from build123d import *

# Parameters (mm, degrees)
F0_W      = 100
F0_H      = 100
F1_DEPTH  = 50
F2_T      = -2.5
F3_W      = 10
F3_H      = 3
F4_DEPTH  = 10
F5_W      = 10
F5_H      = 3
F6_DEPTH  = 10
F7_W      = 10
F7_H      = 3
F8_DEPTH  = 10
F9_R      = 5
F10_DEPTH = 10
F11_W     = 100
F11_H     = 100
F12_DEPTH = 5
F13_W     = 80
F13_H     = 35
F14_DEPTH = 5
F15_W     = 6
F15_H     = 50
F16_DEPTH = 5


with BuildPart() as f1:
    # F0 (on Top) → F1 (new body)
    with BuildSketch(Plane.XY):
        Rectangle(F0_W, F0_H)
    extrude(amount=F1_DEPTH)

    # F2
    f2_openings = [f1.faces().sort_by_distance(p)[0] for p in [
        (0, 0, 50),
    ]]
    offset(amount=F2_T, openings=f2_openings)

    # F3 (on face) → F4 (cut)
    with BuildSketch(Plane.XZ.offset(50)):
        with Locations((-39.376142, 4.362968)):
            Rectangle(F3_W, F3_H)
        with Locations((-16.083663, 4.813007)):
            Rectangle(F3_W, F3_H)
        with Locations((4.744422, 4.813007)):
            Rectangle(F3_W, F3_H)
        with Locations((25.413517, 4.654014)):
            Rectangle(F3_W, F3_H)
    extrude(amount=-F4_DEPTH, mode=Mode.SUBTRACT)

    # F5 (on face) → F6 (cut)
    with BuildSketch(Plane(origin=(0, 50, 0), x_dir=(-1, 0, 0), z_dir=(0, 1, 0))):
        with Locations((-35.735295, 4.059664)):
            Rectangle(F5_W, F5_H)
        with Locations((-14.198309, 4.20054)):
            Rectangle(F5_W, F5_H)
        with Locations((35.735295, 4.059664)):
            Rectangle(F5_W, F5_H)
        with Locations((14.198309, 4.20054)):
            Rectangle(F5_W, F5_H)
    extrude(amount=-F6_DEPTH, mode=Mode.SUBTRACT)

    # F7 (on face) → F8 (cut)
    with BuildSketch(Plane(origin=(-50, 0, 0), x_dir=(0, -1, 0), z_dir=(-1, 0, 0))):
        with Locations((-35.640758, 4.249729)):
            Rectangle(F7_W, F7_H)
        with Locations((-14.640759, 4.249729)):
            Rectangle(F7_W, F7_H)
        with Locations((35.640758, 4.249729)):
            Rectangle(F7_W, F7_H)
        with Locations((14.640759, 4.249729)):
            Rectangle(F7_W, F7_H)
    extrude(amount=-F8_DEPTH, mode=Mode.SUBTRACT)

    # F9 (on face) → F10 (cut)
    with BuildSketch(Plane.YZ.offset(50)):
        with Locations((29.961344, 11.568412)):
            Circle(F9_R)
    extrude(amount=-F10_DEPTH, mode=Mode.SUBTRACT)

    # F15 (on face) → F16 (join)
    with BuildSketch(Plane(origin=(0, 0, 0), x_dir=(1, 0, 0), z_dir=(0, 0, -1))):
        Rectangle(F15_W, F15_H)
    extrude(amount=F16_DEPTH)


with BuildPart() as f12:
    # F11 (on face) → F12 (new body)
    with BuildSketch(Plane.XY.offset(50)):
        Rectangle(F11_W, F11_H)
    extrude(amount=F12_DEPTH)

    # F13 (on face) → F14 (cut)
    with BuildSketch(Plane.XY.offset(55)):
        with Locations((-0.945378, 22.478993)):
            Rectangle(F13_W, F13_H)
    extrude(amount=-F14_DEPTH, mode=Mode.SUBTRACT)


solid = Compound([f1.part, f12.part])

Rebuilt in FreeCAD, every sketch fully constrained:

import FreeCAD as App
import Part
import Sketcher
from FreeCAD import Vector


def faces_at(feature, points):
    """Names of the faces that lie closest to the given points."""
    faces = feature.Shape.Faces
    near = lambda p: min(range(len(faces)), key=lambda i: faces[i].distToShape(Part.Vertex(*p))[0])
    return sorted({f"Face{near(p) + 1}" for p in points})

doc = App.newDocument("Part")
params = doc.addObject("Spreadsheet::Sheet", "Params")
for row, (alias, value) in enumerate([
    ("sketch1_width", "100 mm"),
    ("pad1_length", "50 mm"),
    ("thickness_wall", "2.5 mm"),
    ("sketch2_width", "10 mm"),
    ("sketch2_height", "3 mm"),
    ("pocket1_length", "10 mm"),
    ("sketch3_width", "10 mm"),
    ("sketch3_height", "3 mm"),
    ("pocket2_length", "10 mm"),
    ("sketch4_width", "10 mm"),
    ("sketch4_height", "3 mm"),
    ("pocket3_length", "10 mm"),
    ("sketch5_diameter", "10 mm"),
    ("pocket4_length", "10 mm"),
    ("sketch6_width", "6 mm"),
    ("sketch6_height", "50 mm"),
    ("pad2_length", "5 mm"),
    ("sketch7_width", "100 mm"),
    ("pad3_length", "5 mm"),
    ("sketch8_width", "80 mm"),
    ("sketch8_height", "35 mm"),
    ("pocket5_length", "5 mm"),
], start=1):
    params.set(f"A{row}", alias)
    params.set(f"B{row}", "=" + value)
    params.setAlias(f"B{row}", alias)

body = doc.addObject("PartDesign::Body", "Body")

# Sketch on XY plane
sketch1 = doc.addObject("Sketcher::SketchObject", "Sketch")
body.addObject(sketch1)
sketch1.AttachmentSupport = (doc.XY_Plane, [""])
sketch1.MapMode = "FlatFace"
sketch1.addGeometry(Part.LineSegment(Vector(-50, 50, 0), Vector(-50, -50, 0)), False)
sketch1.addGeometry(Part.LineSegment(Vector(-50, -50, 0), Vector(50, -50, 0)), False)
sketch1.addGeometry(Part.LineSegment(Vector(50, -50, 0), Vector(50, 50, 0)), False)
sketch1.addGeometry(Part.LineSegment(Vector(50, 50, 0), Vector(-50, 50, 0)), False)
sketch1.addConstraint(Sketcher.Constraint("Coincident", 0, 2, 1, 1))
sketch1.addConstraint(Sketcher.Constraint("Coincident", 1, 2, 2, 1))
sketch1.addConstraint(Sketcher.Constraint("Coincident", 2, 2, 3, 1))
sketch1.addConstraint(Sketcher.Constraint("Coincident", 3, 2, 0, 1))
sketch1.addConstraint(Sketcher.Constraint("Vertical", 0))
sketch1.addConstraint(Sketcher.Constraint("Horizontal", 1))
sketch1.addConstraint(Sketcher.Constraint("Vertical", 2))
sketch1.addConstraint(Sketcher.Constraint("Horizontal", 3))
sketch1.addConstraint(Sketcher.Constraint("Symmetric", 0, 2, 2, 2, -1, 1))
sketch1.addConstraint(Sketcher.Constraint("Equal", 3, 0))
sketch1.addConstraint(Sketcher.Constraint("DistanceX", 1, 1, 1, 2, 100.0))
sketch1.setExpression("Constraints[10]", "Params.sketch1_width")
pad1 = doc.addObject("PartDesign::Pad", "Pad")
body.addObject(pad1)
pad1.Profile = sketch1
pad1.setExpression("Length", "Params.pad1_length")
doc.recompute()

thickness = doc.addObject("PartDesign::Thickness", "Thickness")
body.addObject(thickness)
thickness.Base = (pad1, faces_at(pad1, [(0, 0, 50)]))
thickness.setExpression("Value", "Params.thickness_wall")
thickness.Reversed = True
thickness.Join = "Arc"

# Sketch on XZ plane
sketch2 = doc.addObject("Sketcher::SketchObject", "Sketch001")
body.addObject(sketch2)
sketch2.AttachmentSupport = (doc.XZ_Plane, [""])
sketch2.MapMode = "FlatFace"
sketch2.AttachmentOffset = App.Placement(Vector(0, 0, 50), App.Rotation())
sketch2.addGeometry(Part.LineSegment(Vector(-44.4, 5.9, 0), Vector(-44.4, 2.9, 0)), False)
sketch2.addGeometry(Part.LineSegment(Vector(-44.4, 2.9, 0), Vector(-34.4, 2.9, 0)), False)
sketch2.addGeometry(Part.LineSegment(Vector(-34.4, 2.9, 0), Vector(-34.4, 5.9, 0)), False)
sketch2.addGeometry(Part.LineSegment(Vector(-34.4, 5.9, 0), Vector(-44.4, 5.9, 0)), False)
sketch2.addGeometry(Part.LineSegment(Vector(-21.1, 6.3, 0), Vector(-21.1, 3.3, 0)), False)
sketch2.addGeometry(Part.LineSegment(Vector(-21.1, 3.3, 0), Vector(-11.1, 3.3, 0)), False)
sketch2.addGeometry(Part.LineSegment(Vector(-11.1, 3.3, 0), Vector(-11.1, 6.3, 0)), False)
sketch2.addGeometry(Part.LineSegment(Vector(-11.1, 6.3, 0), Vector(-21.1, 6.3, 0)), False)
sketch2.addGeometry(Part.LineSegment(Vector(-0.3, 6.3, 0), Vector(-0.3, 3.3, 0)), False)
sketch2.addGeometry(Part.LineSegment(Vector(-0.3, 3.3, 0), Vector(9.7, 3.3, 0)), False)
sketch2.addGeometry(Part.LineSegment(Vector(9.7, 3.3, 0), Vector(9.7, 6.3, 0)), False)
sketch2.addGeometry(Part.LineSegment(Vector(9.7, 6.3, 0), Vector(-0.3, 6.3, 0)), False)
sketch2.addGeometry(Part.LineSegment(Vector(20.4, 6.2, 0), Vector(20.4, 3.2, 0)), False)
sketch2.addGeometry(Part.LineSegment(Vector(20.4, 3.2, 0), Vector(30.4, 3.2, 0)), False)
sketch2.addGeometry(Part.LineSegment(Vector(30.4, 3.2, 0), Vector(30.4, 6.2, 0)), False)
sketch2.addGeometry(Part.LineSegment(Vector(30.4, 6.2, 0), Vector(20.4, 6.2, 0)), False)
sketch2.addConstraint(Sketcher.Constraint("Coincident", 0, 2, 1, 1))
sketch2.addConstraint(Sketcher.Constraint("Coincident", 1, 2, 2, 1))
sketch2.addConstraint(Sketcher.Constraint("Coincident", 2, 2, 3, 1))
sketch2.addConstraint(Sketcher.Constraint("Coincident", 3, 2, 0, 1))
sketch2.addConstraint(Sketcher.Constraint("Coincident", 4, 2, 5, 1))
sketch2.addConstraint(Sketcher.Constraint("Coincident", 5, 2, 6, 1))
sketch2.addConstraint(Sketcher.Constraint("Coincident", 6, 2, 7, 1))
sketch2.addConstraint(Sketcher.Constraint("Coincident", 7, 2, 4, 1))
sketch2.addConstraint(Sketcher.Constraint("Coincident", 8, 2, 9, 1))
sketch2.addConstraint(Sketcher.Constraint("Coincident", 9, 2, 10, 1))
sketch2.addConstraint(Sketcher.Constraint("Coincident", 10, 2, 11, 1))
sketch2.addConstraint(Sketcher.Constraint("Coincident", 11, 2, 8, 1))
sketch2.addConstraint(Sketcher.Constraint("Coincident", 12, 2, 13, 1))
sketch2.addConstraint(Sketcher.Constraint("Coincident", 13, 2, 14, 1))
sketch2.addConstraint(Sketcher.Constraint("Coincident", 14, 2, 15, 1))
sketch2.addConstraint(Sketcher.Constraint("Coincident", 15, 2, 12, 1))
sketch2.addConstraint(Sketcher.Constraint("Vertical", 0))
sketch2.addConstraint(Sketcher.Constraint("Horizontal", 1))
sketch2.addConstraint(Sketcher.Constraint("Vertical", 2))
sketch2.addConstraint(Sketcher.Constraint("Horizontal", 3))
sketch2.addConstraint(Sketcher.Constraint("Vertical", 4))
sketch2.addConstraint(Sketcher.Constraint("Horizontal", 5))
sketch2.addConstraint(Sketcher.Constraint("Vertical", 6))
sketch2.addConstraint(Sketcher.Constraint("Horizontal", 7))
sketch2.addConstraint(Sketcher.Constraint("Vertical", 8))
sketch2.addConstraint(Sketcher.Constraint("Horizontal", 9))
sketch2.addConstraint(Sketcher.Constraint("Vertical", 10))
sketch2.addConstraint(Sketcher.Constraint("Horizontal", 11))
sketch2.addConstraint(Sketcher.Constraint("Vertical", 12))
sketch2.addConstraint(Sketcher.Constraint("Horizontal", 13))
sketch2.addConstraint(Sketcher.Constraint("Vertical", 14))
sketch2.addConstraint(Sketcher.Constraint("Horizontal", 15))
sketch2.addConstraint(Sketcher.Constraint("Horizontal", 5, 2, 8, 2))
sketch2.addConstraint(Sketcher.Constraint("Horizontal", 7, 2, 10, 2))
sketch2.addConstraint(Sketcher.Constraint("Equal", 3, 5))
sketch2.addConstraint(Sketcher.Constraint("Equal", 7, 9))
sketch2.addConstraint(Sketcher.Constraint("Equal", 11, 13))
sketch2.addConstraint(Sketcher.Constraint("Equal", 2, 4))
sketch2.addConstraint(Sketcher.Constraint("Equal", 10, 12))
sketch2.addConstraint(Sketcher.Constraint("DistanceX", 1, 1, 1, 2, 10.0))
sketch2.addConstraint(Sketcher.Constraint("DistanceY", 0, 2, 0, 1, 3.0))
sketch2.addConstraint(Sketcher.Constraint("DistanceY", -1, 1, 0, 2, 2.862968))
sketch2.addConstraint(Sketcher.Constraint("DistanceX", 8, 2, -1, 1, 0.255578))
sketch2.addConstraint(Sketcher.Constraint("DistanceX", 1, 2, 4, 2, 13.292479))
sketch2.addConstraint(Sketcher.Constraint("DistanceY", 1, 2, 4, 2, 0.450039))
sketch2.addConstraint(Sketcher.Constraint("DistanceX", 5, 2, 12, 2, 31.49718))
sketch2.addConstraint(Sketcher.Constraint("DistanceX", 0, 2, -1, 1, 44.376142))
sketch2.addConstraint(Sketcher.Constraint("DistanceY", -1, 1, 12, 2, 3.154014))
sketch2.setExpression("Constraints[39]", "Params.sketch2_width")
sketch2.setExpression("Constraints[40]", "Params.sketch2_height")
pocket1 = doc.addObject("PartDesign::Pocket", "Pocket")
body.addObject(pocket1)
pocket1.Profile = sketch2
pocket1.setExpression("Length", "Params.pocket1_length")

# Sketch on XZ plane
sketch3 = doc.addObject("Sketcher::SketchObject", "Sketch002")
body.addObject(sketch3)
sketch3.AttachmentSupport = (doc.XZ_Plane, [""])
sketch3.MapMode = "FlatFace"
sketch3.AttachmentOffset = App.Placement(Vector(0, 0, -50), App.Rotation())
sketch3.addGeometry(Part.LineSegment(Vector(40.7, 5.6, 0), Vector(40.7, 2.6, 0)), False)
sketch3.addGeometry(Part.LineSegment(Vector(40.7, 2.6, 0), Vector(30.7, 2.6, 0)), False)
sketch3.addGeometry(Part.LineSegment(Vector(30.7, 2.6, 0), Vector(30.7, 5.6, 0)), False)
sketch3.addGeometry(Part.LineSegment(Vector(30.7, 5.6, 0), Vector(40.7, 5.6, 0)), False)
sketch3.addGeometry(Part.LineSegment(Vector(19.2, 5.7, 0), Vector(19.2, 2.7, 0)), False)
sketch3.addGeometry(Part.LineSegment(Vector(19.2, 2.7, 0), Vector(9.2, 2.7, 0)), False)
sketch3.addGeometry(Part.LineSegment(Vector(9.2, 2.7, 0), Vector(9.2, 5.7, 0)), False)
sketch3.addGeometry(Part.LineSegment(Vector(9.2, 5.7, 0), Vector(19.2, 5.7, 0)), False)
sketch3.addGeometry(Part.LineSegment(Vector(-30.7, 5.6, 0), Vector(-30.7, 2.6, 0)), False)
sketch3.addGeometry(Part.LineSegment(Vector(-30.7, 2.6, 0), Vector(-40.7, 2.6, 0)), False)
sketch3.addGeometry(Part.LineSegment(Vector(-40.7, 2.6, 0), Vector(-40.7, 5.6, 0)), False)
sketch3.addGeometry(Part.LineSegment(Vector(-40.7, 5.6, 0), Vector(-30.7, 5.6, 0)), False)
sketch3.addGeometry(Part.LineSegment(Vector(-9.2, 5.7, 0), Vector(-9.2, 2.7, 0)), False)
sketch3.addGeometry(Part.LineSegment(Vector(-9.2, 2.7, 0), Vector(-19.2, 2.7, 0)), False)
sketch3.addGeometry(Part.LineSegment(Vector(-19.2, 2.7, 0), Vector(-19.2, 5.7, 0)), False)
sketch3.addGeometry(Part.LineSegment(Vector(-19.2, 5.7, 0), Vector(-9.2, 5.7, 0)), False)
sketch3.addConstraint(Sketcher.Constraint("Coincident", 0, 2, 1, 1))
sketch3.addConstraint(Sketcher.Constraint("Coincident", 1, 2, 2, 1))
sketch3.addConstraint(Sketcher.Constraint("Coincident", 2, 2, 3, 1))
sketch3.addConstraint(Sketcher.Constraint("Coincident", 3, 2, 0, 1))
sketch3.addConstraint(Sketcher.Constraint("Coincident", 4, 2, 5, 1))
sketch3.addConstraint(Sketcher.Constraint("Coincident", 5, 2, 6, 1))
sketch3.addConstraint(Sketcher.Constraint("Coincident", 6, 2, 7, 1))
sketch3.addConstraint(Sketcher.Constraint("Coincident", 7, 2, 4, 1))
sketch3.addConstraint(Sketcher.Constraint("Coincident", 8, 2, 9, 1))
sketch3.addConstraint(Sketcher.Constraint("Coincident", 9, 2, 10, 1))
sketch3.addConstraint(Sketcher.Constraint("Coincident", 10, 2, 11, 1))
sketch3.addConstraint(Sketcher.Constraint("Coincident", 11, 2, 8, 1))
sketch3.addConstraint(Sketcher.Constraint("Coincident", 12, 2, 13, 1))
sketch3.addConstraint(Sketcher.Constraint("Coincident", 13, 2, 14, 1))
sketch3.addConstraint(Sketcher.Constraint("Coincident", 14, 2, 15, 1))
sketch3.addConstraint(Sketcher.Constraint("Coincident", 15, 2, 12, 1))
sketch3.addConstraint(Sketcher.Constraint("Vertical", 0))
sketch3.addConstraint(Sketcher.Constraint("Horizontal", 1))
sketch3.addConstraint(Sketcher.Constraint("Vertical", 2))
sketch3.addConstraint(Sketcher.Constraint("Horizontal", 3))
sketch3.addConstraint(Sketcher.Constraint("Vertical", 4))
sketch3.addConstraint(Sketcher.Constraint("Horizontal", 5))
sketch3.addConstraint(Sketcher.Constraint("Vertical", 6))
sketch3.addConstraint(Sketcher.Constraint("Horizontal", 7))
sketch3.addConstraint(Sketcher.Constraint("Vertical", 8))
sketch3.addConstraint(Sketcher.Constraint("Horizontal", 9))
sketch3.addConstraint(Sketcher.Constraint("Vertical", 10))
sketch3.addConstraint(Sketcher.Constraint("Horizontal", 11))
sketch3.addConstraint(Sketcher.Constraint("Vertical", 12))
sketch3.addConstraint(Sketcher.Constraint("Horizontal", 13))
sketch3.addConstraint(Sketcher.Constraint("Vertical", 14))
sketch3.addConstraint(Sketcher.Constraint("Horizontal", 15))
sketch3.addConstraint(Sketcher.Constraint("Symmetric", 1, 2, 8, 2, -2))
sketch3.addConstraint(Sketcher.Constraint("Symmetric", 3, 2, 10, 2, -2))
sketch3.addConstraint(Sketcher.Constraint("Symmetric", 5, 2, 12, 2, -2))
sketch3.addConstraint(Sketcher.Constraint("Symmetric", 7, 2, 14, 2, -2))
sketch3.addConstraint(Sketcher.Constraint("Equal", 3, 5))
sketch3.addConstraint(Sketcher.Constraint("Equal", 2, 4))
sketch3.addConstraint(Sketcher.Constraint("DistanceX", 1, 2, 1, 1, 10.0))
sketch3.addConstraint(Sketcher.Constraint("DistanceY", 0, 2, 0, 1, 3.0))
sketch3.addConstraint(Sketcher.Constraint("DistanceX", -1, 1, 4, 2, 19.198309))
sketch3.addConstraint(Sketcher.Constraint("DistanceY", -1, 1, 4, 2, 2.70054))
sketch3.addConstraint(Sketcher.Constraint("DistanceX", 8, 2, 1, 2, 61.47059))
sketch3.addConstraint(Sketcher.Constraint("DistanceY", -1, 1, 0, 2, 2.559664))
sketch3.setExpression("Constraints[38]", "Params.sketch3_width")
sketch3.setExpression("Constraints[39]", "Params.sketch3_height")
pocket2 = doc.addObject("PartDesign::Pocket", "Pocket001")
body.addObject(pocket2)
pocket2.Profile = sketch3
pocket2.setExpression("Length", "Params.pocket2_length")
pocket2.Reversed = True

# Sketch on YZ plane
sketch4 = doc.addObject("Sketcher::SketchObject", "Sketch003")
body.addObject(sketch4)
sketch4.AttachmentSupport = (doc.YZ_Plane, [""])
sketch4.MapMode = "FlatFace"
sketch4.AttachmentOffset = App.Placement(Vector(0, 0, -50), App.Rotation())
sketch4.addGeometry(Part.LineSegment(Vector(40.6, 5.7, 0), Vector(40.6, 2.7, 0)), False)
sketch4.addGeometry(Part.LineSegment(Vector(40.6, 2.7, 0), Vector(30.6, 2.7, 0)), False)
sketch4.addGeometry(Part.LineSegment(Vector(30.6, 2.7, 0), Vector(30.6, 5.7, 0)), False)
sketch4.addGeometry(Part.LineSegment(Vector(30.6, 5.7, 0), Vector(40.6, 5.7, 0)), False)
sketch4.addGeometry(Part.LineSegment(Vector(19.6, 5.7, 0), Vector(19.6, 2.7, 0)), False)
sketch4.addGeometry(Part.LineSegment(Vector(19.6, 2.7, 0), Vector(9.6, 2.7, 0)), False)
sketch4.addGeometry(Part.LineSegment(Vector(9.6, 2.7, 0), Vector(9.6, 5.7, 0)), False)
sketch4.addGeometry(Part.LineSegment(Vector(9.6, 5.7, 0), Vector(19.6, 5.7, 0)), False)
sketch4.addGeometry(Part.LineSegment(Vector(-30.6, 5.7, 0), Vector(-30.6, 2.7, 0)), False)
sketch4.addGeometry(Part.LineSegment(Vector(-30.6, 2.7, 0), Vector(-40.6, 2.7, 0)), False)
sketch4.addGeometry(Part.LineSegment(Vector(-40.6, 2.7, 0), Vector(-40.6, 5.7, 0)), False)
sketch4.addGeometry(Part.LineSegment(Vector(-40.6, 5.7, 0), Vector(-30.6, 5.7, 0)), False)
sketch4.addGeometry(Part.LineSegment(Vector(-9.6, 5.7, 0), Vector(-9.6, 2.7, 0)), False)
sketch4.addGeometry(Part.LineSegment(Vector(-9.6, 2.7, 0), Vector(-19.6, 2.7, 0)), False)
sketch4.addGeometry(Part.LineSegment(Vector(-19.6, 2.7, 0), Vector(-19.6, 5.7, 0)), False)
sketch4.addGeometry(Part.LineSegment(Vector(-19.6, 5.7, 0), Vector(-9.6, 5.7, 0)), False)
sketch4.addConstraint(Sketcher.Constraint("Coincident", 0, 2, 1, 1))
sketch4.addConstraint(Sketcher.Constraint("Coincident", 1, 2, 2, 1))
sketch4.addConstraint(Sketcher.Constraint("Coincident", 2, 2, 3, 1))
sketch4.addConstraint(Sketcher.Constraint("Coincident", 3, 2, 0, 1))
sketch4.addConstraint(Sketcher.Constraint("Coincident", 4, 2, 5, 1))
sketch4.addConstraint(Sketcher.Constraint("Coincident", 5, 2, 6, 1))
sketch4.addConstraint(Sketcher.Constraint("Coincident", 6, 2, 7, 1))
sketch4.addConstraint(Sketcher.Constraint("Coincident", 7, 2, 4, 1))
sketch4.addConstraint(Sketcher.Constraint("Coincident", 8, 2, 9, 1))
sketch4.addConstraint(Sketcher.Constraint("Coincident", 9, 2, 10, 1))
sketch4.addConstraint(Sketcher.Constraint("Coincident", 10, 2, 11, 1))
sketch4.addConstraint(Sketcher.Constraint("Coincident", 11, 2, 8, 1))
sketch4.addConstraint(Sketcher.Constraint("Coincident", 12, 2, 13, 1))
sketch4.addConstraint(Sketcher.Constraint("Coincident", 13, 2, 14, 1))
sketch4.addConstraint(Sketcher.Constraint("Coincident", 14, 2, 15, 1))
sketch4.addConstraint(Sketcher.Constraint("Coincident", 15, 2, 12, 1))
sketch4.addConstraint(Sketcher.Constraint("Vertical", 0))
sketch4.addConstraint(Sketcher.Constraint("Horizontal", 1))
sketch4.addConstraint(Sketcher.Constraint("Vertical", 2))
sketch4.addConstraint(Sketcher.Constraint("Horizontal", 3))
sketch4.addConstraint(Sketcher.Constraint("Vertical", 4))
sketch4.addConstraint(Sketcher.Constraint("Horizontal", 5))
sketch4.addConstraint(Sketcher.Constraint("Vertical", 6))
sketch4.addConstraint(Sketcher.Constraint("Horizontal", 7))
sketch4.addConstraint(Sketcher.Constraint("Vertical", 8))
sketch4.addConstraint(Sketcher.Constraint("Horizontal", 9))
sketch4.addConstraint(Sketcher.Constraint("Vertical", 10))
sketch4.addConstraint(Sketcher.Constraint("Horizontal", 11))
sketch4.addConstraint(Sketcher.Constraint("Vertical", 12))
sketch4.addConstraint(Sketcher.Constraint("Horizontal", 13))
sketch4.addConstraint(Sketcher.Constraint("Vertical", 14))
sketch4.addConstraint(Sketcher.Constraint("Horizontal", 15))
sketch4.addConstraint(Sketcher.Constraint("Symmetric", 1, 2, 8, 2, -2))
sketch4.addConstraint(Sketcher.Constraint("Symmetric", 3, 2, 10, 2, -2))
sketch4.addConstraint(Sketcher.Constraint("Symmetric", 5, 2, 12, 2, -2))
sketch4.addConstraint(Sketcher.Constraint("Symmetric", 7, 2, 14, 2, -2))
sketch4.addConstraint(Sketcher.Constraint("Horizontal", 1, 2, 4, 2))
sketch4.addConstraint(Sketcher.Constraint("Horizontal", 3, 2, 6, 2))
sketch4.addConstraint(Sketcher.Constraint("Equal", 3, 5))
sketch4.addConstraint(Sketcher.Constraint("DistanceX", 1, 2, 1, 1, 10.0))
sketch4.addConstraint(Sketcher.Constraint("DistanceY", 0, 2, 0, 1, 3.0))
sketch4.addConstraint(Sketcher.Constraint("DistanceX", 4, 2, 1, 2, 10.999999))
sketch4.addConstraint(Sketcher.Constraint("DistanceY", -1, 1, 0, 2, 2.749729))
sketch4.addConstraint(Sketcher.Constraint("DistanceX", -1, 1, 1, 2, 30.640758))
sketch4.setExpression("Constraints[39]", "Params.sketch4_width")
sketch4.setExpression("Constraints[40]", "Params.sketch4_height")
pocket3 = doc.addObject("PartDesign::Pocket", "Pocket002")
body.addObject(pocket3)
pocket3.Profile = sketch4
pocket3.setExpression("Length", "Params.pocket3_length")
pocket3.Reversed = True

# Sketch on YZ plane
sketch5 = doc.addObject("Sketcher::SketchObject", "Sketch004")
body.addObject(sketch5)
sketch5.AttachmentSupport = (doc.YZ_Plane, [""])
sketch5.MapMode = "FlatFace"
sketch5.AttachmentOffset = App.Placement(Vector(0, 0, 50), App.Rotation())
sketch5.addGeometry(Part.Circle(Vector(30, 12, 0), Vector(0, 0, 1), 5), False)
sketch5.addConstraint(Sketcher.Constraint("Diameter", 0, 10.0))
sketch5.addConstraint(Sketcher.Constraint("DistanceX", -1, 1, 0, 3, 29.961344))
sketch5.addConstraint(Sketcher.Constraint("DistanceY", -1, 1, 0, 3, 11.568412))
sketch5.setExpression("Constraints[0]", "Params.sketch5_diameter")
pocket4 = doc.addObject("PartDesign::Pocket", "Pocket003")
body.addObject(pocket4)
pocket4.Profile = sketch5
pocket4.setExpression("Length", "Params.pocket4_length")

# Sketch on XY plane
sketch6 = doc.addObject("Sketcher::SketchObject", "Sketch005")
body.addObject(sketch6)
sketch6.AttachmentSupport = (doc.XY_Plane, [""])
sketch6.MapMode = "FlatFace"
sketch6.addGeometry(Part.LineSegment(Vector(-3, -25, 0), Vector(-3, 25, 0)), False)
sketch6.addGeometry(Part.LineSegment(Vector(-3, 25, 0), Vector(3, 25, 0)), False)
sketch6.addGeometry(Part.LineSegment(Vector(3, 25, 0), Vector(3, -25, 0)), False)
sketch6.addGeometry(Part.LineSegment(Vector(3, -25, 0), Vector(-3, -25, 0)), False)
sketch6.addConstraint(Sketcher.Constraint("Coincident", 0, 2, 1, 1))
sketch6.addConstraint(Sketcher.Constraint("Coincident", 1, 2, 2, 1))
sketch6.addConstraint(Sketcher.Constraint("Coincident", 2, 2, 3, 1))
sketch6.addConstraint(Sketcher.Constraint("Coincident", 3, 2, 0, 1))
sketch6.addConstraint(Sketcher.Constraint("Vertical", 0))
sketch6.addConstraint(Sketcher.Constraint("Horizontal", 1))
sketch6.addConstraint(Sketcher.Constraint("Vertical", 2))
sketch6.addConstraint(Sketcher.Constraint("Horizontal", 3))
sketch6.addConstraint(Sketcher.Constraint("Symmetric", 0, 2, 2, 2, -1, 1))
sketch6.addConstraint(Sketcher.Constraint("DistanceX", 1, 1, 1, 2, 6.0))
sketch6.addConstraint(Sketcher.Constraint("DistanceY", 0, 1, 0, 2, 50.0))
sketch6.setExpression("Constraints[9]", "Params.sketch6_width")
sketch6.setExpression("Constraints[10]", "Params.sketch6_height")
pad2 = doc.addObject("PartDesign::Pad", "Pad001")
body.addObject(pad2)
pad2.Profile = sketch6
pad2.setExpression("Length", "Params.pad2_length")
pad2.Reversed = True
body2 = doc.addObject("PartDesign::Body", "Body001")

# Sketch on XY plane
sketch7 = doc.addObject("Sketcher::SketchObject", "Sketch006")
body2.addObject(sketch7)
sketch7.AttachmentSupport = (doc.getObject("XY_Plane001"), [""])
sketch7.MapMode = "FlatFace"
sketch7.AttachmentOffset = App.Placement(Vector(0, 0, 50), App.Rotation())
sketch7.addGeometry(Part.LineSegment(Vector(-50, 50, 0), Vector(-50, -50, 0)), False)
sketch7.addGeometry(Part.LineSegment(Vector(-50, -50, 0), Vector(50, -50, 0)), False)
sketch7.addGeometry(Part.LineSegment(Vector(50, -50, 0), Vector(50, 50, 0)), False)
sketch7.addGeometry(Part.LineSegment(Vector(50, 50, 0), Vector(-50, 50, 0)), False)
sketch7.addConstraint(Sketcher.Constraint("Coincident", 0, 2, 1, 1))
sketch7.addConstraint(Sketcher.Constraint("Coincident", 1, 2, 2, 1))
sketch7.addConstraint(Sketcher.Constraint("Coincident", 2, 2, 3, 1))
sketch7.addConstraint(Sketcher.Constraint("Coincident", 3, 2, 0, 1))
sketch7.addConstraint(Sketcher.Constraint("Vertical", 0))
sketch7.addConstraint(Sketcher.Constraint("Horizontal", 1))
sketch7.addConstraint(Sketcher.Constraint("Vertical", 2))
sketch7.addConstraint(Sketcher.Constraint("Horizontal", 3))
sketch7.addConstraint(Sketcher.Constraint("Symmetric", 0, 2, 2, 2, -1, 1))
sketch7.addConstraint(Sketcher.Constraint("Equal", 3, 0))
sketch7.addConstraint(Sketcher.Constraint("DistanceX", 1, 1, 1, 2, 100.0))
sketch7.setExpression("Constraints[10]", "Params.sketch7_width")
pad3 = doc.addObject("PartDesign::Pad", "Pad002")
body2.addObject(pad3)
pad3.Profile = sketch7
pad3.setExpression("Length", "Params.pad3_length")

# Sketch on XY plane
sketch8 = doc.addObject("Sketcher::SketchObject", "Sketch007")
body2.addObject(sketch8)
sketch8.AttachmentSupport = (doc.getObject("XY_Plane001"), [""])
sketch8.MapMode = "FlatFace"
sketch8.AttachmentOffset = App.Placement(Vector(0, 0, 55), App.Rotation())
sketch8.addGeometry(Part.LineSegment(Vector(-41, 40, 0), Vector(-41, 5, 0)), False)
sketch8.addGeometry(Part.LineSegment(Vector(-41, 5, 0), Vector(39, 5, 0)), False)
sketch8.addGeometry(Part.LineSegment(Vector(39, 5, 0), Vector(39, 40, 0)), False)
sketch8.addGeometry(Part.LineSegment(Vector(39, 40, 0), Vector(-41, 40, 0)), False)
sketch8.addConstraint(Sketcher.Constraint("Coincident", 0, 2, 1, 1))
sketch8.addConstraint(Sketcher.Constraint("Coincident", 1, 2, 2, 1))
sketch8.addConstraint(Sketcher.Constraint("Coincident", 2, 2, 3, 1))
sketch8.addConstraint(Sketcher.Constraint("Coincident", 3, 2, 0, 1))
sketch8.addConstraint(Sketcher.Constraint("Vertical", 0))
sketch8.addConstraint(Sketcher.Constraint("Horizontal", 1))
sketch8.addConstraint(Sketcher.Constraint("Vertical", 2))
sketch8.addConstraint(Sketcher.Constraint("Horizontal", 3))
sketch8.addConstraint(Sketcher.Constraint("DistanceX", 1, 1, 1, 2, 80.0))
sketch8.addConstraint(Sketcher.Constraint("DistanceY", 0, 2, 0, 1, 35.0))
sketch8.addConstraint(Sketcher.Constraint("DistanceX", 0, 2, -1, 1, 40.945378))
sketch8.addConstraint(Sketcher.Constraint("DistanceY", -1, 1, 0, 2, 4.978993))
sketch8.setExpression("Constraints[8]", "Params.sketch8_width")
sketch8.setExpression("Constraints[9]", "Params.sketch8_height")
pocket5 = doc.addObject("PartDesign::Pocket", "Pocket004")
body2.addObject(pocket5)
pocket5.Profile = sketch8
pocket5.setExpression("Length", "Params.pocket5_length")

doc.recompute()
